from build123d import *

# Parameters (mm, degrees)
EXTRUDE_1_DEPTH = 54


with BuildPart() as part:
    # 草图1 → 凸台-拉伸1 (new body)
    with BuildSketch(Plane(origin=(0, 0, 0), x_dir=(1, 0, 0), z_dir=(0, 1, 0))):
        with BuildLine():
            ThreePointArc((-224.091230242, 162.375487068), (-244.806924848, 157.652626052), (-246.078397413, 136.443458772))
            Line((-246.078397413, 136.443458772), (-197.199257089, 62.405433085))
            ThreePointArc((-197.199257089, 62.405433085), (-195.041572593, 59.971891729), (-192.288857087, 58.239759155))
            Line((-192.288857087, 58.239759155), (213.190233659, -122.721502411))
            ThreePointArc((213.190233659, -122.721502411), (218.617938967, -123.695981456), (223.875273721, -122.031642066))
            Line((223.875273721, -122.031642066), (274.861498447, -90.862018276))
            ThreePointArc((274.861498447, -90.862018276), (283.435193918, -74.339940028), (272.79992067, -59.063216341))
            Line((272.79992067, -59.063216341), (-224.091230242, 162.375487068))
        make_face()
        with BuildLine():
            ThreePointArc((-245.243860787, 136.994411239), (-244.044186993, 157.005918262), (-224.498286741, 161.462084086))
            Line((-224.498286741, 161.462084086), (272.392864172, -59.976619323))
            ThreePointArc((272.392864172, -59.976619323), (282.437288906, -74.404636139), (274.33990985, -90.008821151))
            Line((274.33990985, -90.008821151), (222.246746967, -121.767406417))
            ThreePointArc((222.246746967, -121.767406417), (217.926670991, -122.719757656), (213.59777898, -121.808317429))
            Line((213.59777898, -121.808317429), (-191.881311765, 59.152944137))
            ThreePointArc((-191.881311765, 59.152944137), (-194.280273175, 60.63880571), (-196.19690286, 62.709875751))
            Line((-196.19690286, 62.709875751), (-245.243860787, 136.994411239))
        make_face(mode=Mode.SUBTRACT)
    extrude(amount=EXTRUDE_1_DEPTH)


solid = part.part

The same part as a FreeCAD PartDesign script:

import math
import FreeCAD as App
import Part
import Sketcher
from FreeCAD import Vector
Q = App.Units.Quantity

doc = App.newDocument("Part")
body = doc.addObject("PartDesign::Body", "Body")

sketch1 = body.newObject("Sketcher::SketchObject", "Sketch")
sketch1.AttachmentSupport = (doc.getObject("XZ_Plane"), [""])
sketch1.MapMode = "FlatFace"
sketch1.addGeometry([
    Part.ArcOfCircle(Part.Circle(Vector(-231.299726, -146.200185, 0), Vector(0, 0, 1), 17.708835), math.radians(146.567619), math.radians(294.020062)),
    Part.LineSegment(Vector(-246.078397, -136.443459, 0), Vector(-197.199257, -62.405433, 0)),
    Part.ArcOfCircle(Part.Circle(Vector(-187.602086, -68.741386, 0), Vector(0, 0, 1), 11.5), math.radians(114.050729), math.radians(146.567619)),
    Part.LineSegment(Vector(-192.288857, -58.239759, 0), Vector(213.190234, 122.721502, 0)),
    Part.ArcOfCircle(Part.Circle(Vector(217.877005, 112.219875, 0), Vector(0, 0, 1), 11.5), math.radians(58.561128), math.radians(114.050729)),
    Part.LineSegment(Vector(223.875274, 122.031642, 0), Vector(274.861498, 90.862018, 0)),
    Part.ArcOfCircle(Part.Circle(Vector(265.472904, 75.50447, 0), Vector(0, 0, 1), 18), math.radians(-65.979938), math.radians(58.561128)),
    Part.LineSegment(Vector(272.799921, 59.063216, 0), Vector(-224.09123, -162.375487, 0)),
    Part.LineSegment(Vector(-196.196903, -62.709876, 0), Vector(-245.243861, -136.994411, 0)),
    Part.ArcOfCircle(Part.Circle(Vector(-231.299726, -146.200185, 0), Vector(0, 0, 1), 16.708835), math.radians(146.567619), math.radians(294.020062)),
    Part.LineSegment(Vector(-224.498287, -161.462084, 0), Vector(272.392864, 59.976619, 0)),
    Part.ArcOfCircle(Part.Circle(Vector(265.472904, 75.50447, 0), Vector(0, 0, 1), 17), math.radians(-65.979938), math.radians(58.561128)),
    Part.LineSegment(Vector(274.33991, 90.008821, 0), Vector(222.246747, 121.767406, 0)),
    Part.ArcOfCircle(Part.Circle(Vector(217.877005, 112.219875, 0), Vector(0, 0, 1), 10.5), math.radians(65.407239), math.radians(114.050729)),
    Part.LineSegment(Vector(213.597779, 121.808317, 0), Vector(-191.881312, -59.152944, 0)),
    Part.ArcOfCircle(Part.Circle(Vector(-187.602086, -68.741386, 0), Vector(0, 0, 1), 10.5), math.radians(114.050729), math.radians(144.940304)),
], False)
sketch1.addConstraint([
    Sketcher.Constraint("Coincident", 0, 1, 1, 1),
    Sketcher.Constraint("Coincident", 1, 2, 2, 2),
    Sketcher.Constraint("Coincident", 2, 1, 3, 1),
    Sketcher.Constraint("Coincident", 3, 2, 4, 2),
    Sketcher.Constraint("Coincident", 4, 1, 5, 1),
    Sketcher.Constraint("Coincident", 5, 2, 6, 2),
    Sketcher.Constraint("Coincident", 6, 1, 7, 1),
    Sketcher.Constraint("Coincident", 7, 2, 0, 2),
    Sketcher.Constraint("Coincident", 8, 2, 9, 1),
    Sketcher.Constraint("Coincident", 9, 2, 10, 1),
    Sketcher.Constraint("Coincident", 10, 2, 11, 1),
    Sketcher.Constraint("Coincident", 11, 2, 12, 1),
    Sketcher.Constraint("Coincident", 12, 2, 13, 1),
    Sketcher.Constraint("Coincident", 13, 2, 14, 1),
    Sketcher.Constraint("Coincident", 14, 2, 15, 1),
    Sketcher.Constraint("Coincident", 15, 2, 8, 1),
    Sketcher.Constraint("Coincident", 9, 3, 0, 3),
    Sketcher.Constraint("Coincident", 11, 3, 6, 3),
    Sketcher.Constraint("Coincident", 13, 3, 4, 3),
    Sketcher.Constraint("Coincident", 15, 3, 2, 3),
    Sketcher.Constraint("Radius", 6, Q("18 mm")),
    Sketcher.Constraint("Radius", 11, Q("17 mm")),
    Sketcher.Constraint("Radius", 2, Q("11.5 mm")),
    Sketcher.Constraint("Radius", 4, Q("11.5 mm")),
    Sketcher.Constraint("Radius", 13, Q("10.5 mm")),
    Sketcher.Constraint("Radius", 15, Q("10.5 mm")),
    Sketcher.Constraint("Radius", 0, Q("17.708835 mm")),
    Sketcher.Constraint("Radius", 9, Q("16.708835 mm")),
    Sketcher.Constraint("Distance", 12, Q("61.010699 mm")),
    Sketcher.Constraint("DistanceX", -1, 1, 5, 2, Q("274.861498 mm")),
    Sketcher.Constraint("DistanceY", 0, 3, 2, 3, Q("77.458798 mm")),
    Sketcher.Constraint("DistanceX", 4, 3, 6, 3, Q("47.595899 mm")),
    Sketcher.Constraint("DistanceX", 1, 2, 2, 1, Q("4.9104 mm")),
    Sketcher.Constraint("DistanceY", 0, 1, 2, 1, Q("78.2037 mm")),
    Sketcher.Constraint("DistanceY", 6, 1, 5, 2, Q("31.798802 mm")),
    Sketcher.Constraint("DistanceY", 7, 2, 2, 3, Q("93.634101 mm")),
    Sketcher.Constraint("DistanceY", 9, 2, 0, 3, Q("15.261899 mm")),
    Sketcher.Constraint("DistanceY", 10, 2, 5, 2, Q("30.885399 mm")),
    Sketcher.Constraint("DistanceY", 10, 2, 11, 2, Q("30.032202 mm")),
    Sketcher.Constraint("Distance", 3, Q("444.027332 mm")),
    Sketcher.Constraint("Distance", 5, Q("59.759021 mm")),
    Sketcher.Constraint("Distance", 8, Q("89.015708 mm")),
    Sketcher.Constraint("Distance", 14, Q("444.027332 mm")),
    Sketcher.Constraint("DistanceY", -1, 1, 6, 3, Q("75.50447 mm")),
    Sketcher.Constraint("DistanceY", 0, 1, -1, 1, Q("136.443459 mm")),
    Sketcher.Constraint("DistanceY", -1, 1, 5, 2, Q("90.862018 mm")),
    Sketcher.Constraint("DistanceX", 7, 2, -1, 1, Q("224.09123 mm")),
    Sketcher.Constraint("DistanceX", 8, 2, -1, 1, Q("245.243861 mm")),
    Sketcher.Constraint("DistanceY", 8, 2, -1, 1, Q("136.994411 mm")),
    Sketcher.Constraint("DistanceX", -1, 1, 13, 2, Q("213.597779 mm")),
    Sketcher.Constraint("DistanceX", 14, 2, -1, 1, Q("191.881312 mm")),
    Sketcher.Constraint("DistanceX", 0, 3, 2, 3, Q("43.697641 mm")),
])
pad1 = body.newObject("PartDesign::Pad", "Pad")
pad1.Profile = sketch1
pad1.Length = 54
pad1.Reversed = True

doc.recompute()
